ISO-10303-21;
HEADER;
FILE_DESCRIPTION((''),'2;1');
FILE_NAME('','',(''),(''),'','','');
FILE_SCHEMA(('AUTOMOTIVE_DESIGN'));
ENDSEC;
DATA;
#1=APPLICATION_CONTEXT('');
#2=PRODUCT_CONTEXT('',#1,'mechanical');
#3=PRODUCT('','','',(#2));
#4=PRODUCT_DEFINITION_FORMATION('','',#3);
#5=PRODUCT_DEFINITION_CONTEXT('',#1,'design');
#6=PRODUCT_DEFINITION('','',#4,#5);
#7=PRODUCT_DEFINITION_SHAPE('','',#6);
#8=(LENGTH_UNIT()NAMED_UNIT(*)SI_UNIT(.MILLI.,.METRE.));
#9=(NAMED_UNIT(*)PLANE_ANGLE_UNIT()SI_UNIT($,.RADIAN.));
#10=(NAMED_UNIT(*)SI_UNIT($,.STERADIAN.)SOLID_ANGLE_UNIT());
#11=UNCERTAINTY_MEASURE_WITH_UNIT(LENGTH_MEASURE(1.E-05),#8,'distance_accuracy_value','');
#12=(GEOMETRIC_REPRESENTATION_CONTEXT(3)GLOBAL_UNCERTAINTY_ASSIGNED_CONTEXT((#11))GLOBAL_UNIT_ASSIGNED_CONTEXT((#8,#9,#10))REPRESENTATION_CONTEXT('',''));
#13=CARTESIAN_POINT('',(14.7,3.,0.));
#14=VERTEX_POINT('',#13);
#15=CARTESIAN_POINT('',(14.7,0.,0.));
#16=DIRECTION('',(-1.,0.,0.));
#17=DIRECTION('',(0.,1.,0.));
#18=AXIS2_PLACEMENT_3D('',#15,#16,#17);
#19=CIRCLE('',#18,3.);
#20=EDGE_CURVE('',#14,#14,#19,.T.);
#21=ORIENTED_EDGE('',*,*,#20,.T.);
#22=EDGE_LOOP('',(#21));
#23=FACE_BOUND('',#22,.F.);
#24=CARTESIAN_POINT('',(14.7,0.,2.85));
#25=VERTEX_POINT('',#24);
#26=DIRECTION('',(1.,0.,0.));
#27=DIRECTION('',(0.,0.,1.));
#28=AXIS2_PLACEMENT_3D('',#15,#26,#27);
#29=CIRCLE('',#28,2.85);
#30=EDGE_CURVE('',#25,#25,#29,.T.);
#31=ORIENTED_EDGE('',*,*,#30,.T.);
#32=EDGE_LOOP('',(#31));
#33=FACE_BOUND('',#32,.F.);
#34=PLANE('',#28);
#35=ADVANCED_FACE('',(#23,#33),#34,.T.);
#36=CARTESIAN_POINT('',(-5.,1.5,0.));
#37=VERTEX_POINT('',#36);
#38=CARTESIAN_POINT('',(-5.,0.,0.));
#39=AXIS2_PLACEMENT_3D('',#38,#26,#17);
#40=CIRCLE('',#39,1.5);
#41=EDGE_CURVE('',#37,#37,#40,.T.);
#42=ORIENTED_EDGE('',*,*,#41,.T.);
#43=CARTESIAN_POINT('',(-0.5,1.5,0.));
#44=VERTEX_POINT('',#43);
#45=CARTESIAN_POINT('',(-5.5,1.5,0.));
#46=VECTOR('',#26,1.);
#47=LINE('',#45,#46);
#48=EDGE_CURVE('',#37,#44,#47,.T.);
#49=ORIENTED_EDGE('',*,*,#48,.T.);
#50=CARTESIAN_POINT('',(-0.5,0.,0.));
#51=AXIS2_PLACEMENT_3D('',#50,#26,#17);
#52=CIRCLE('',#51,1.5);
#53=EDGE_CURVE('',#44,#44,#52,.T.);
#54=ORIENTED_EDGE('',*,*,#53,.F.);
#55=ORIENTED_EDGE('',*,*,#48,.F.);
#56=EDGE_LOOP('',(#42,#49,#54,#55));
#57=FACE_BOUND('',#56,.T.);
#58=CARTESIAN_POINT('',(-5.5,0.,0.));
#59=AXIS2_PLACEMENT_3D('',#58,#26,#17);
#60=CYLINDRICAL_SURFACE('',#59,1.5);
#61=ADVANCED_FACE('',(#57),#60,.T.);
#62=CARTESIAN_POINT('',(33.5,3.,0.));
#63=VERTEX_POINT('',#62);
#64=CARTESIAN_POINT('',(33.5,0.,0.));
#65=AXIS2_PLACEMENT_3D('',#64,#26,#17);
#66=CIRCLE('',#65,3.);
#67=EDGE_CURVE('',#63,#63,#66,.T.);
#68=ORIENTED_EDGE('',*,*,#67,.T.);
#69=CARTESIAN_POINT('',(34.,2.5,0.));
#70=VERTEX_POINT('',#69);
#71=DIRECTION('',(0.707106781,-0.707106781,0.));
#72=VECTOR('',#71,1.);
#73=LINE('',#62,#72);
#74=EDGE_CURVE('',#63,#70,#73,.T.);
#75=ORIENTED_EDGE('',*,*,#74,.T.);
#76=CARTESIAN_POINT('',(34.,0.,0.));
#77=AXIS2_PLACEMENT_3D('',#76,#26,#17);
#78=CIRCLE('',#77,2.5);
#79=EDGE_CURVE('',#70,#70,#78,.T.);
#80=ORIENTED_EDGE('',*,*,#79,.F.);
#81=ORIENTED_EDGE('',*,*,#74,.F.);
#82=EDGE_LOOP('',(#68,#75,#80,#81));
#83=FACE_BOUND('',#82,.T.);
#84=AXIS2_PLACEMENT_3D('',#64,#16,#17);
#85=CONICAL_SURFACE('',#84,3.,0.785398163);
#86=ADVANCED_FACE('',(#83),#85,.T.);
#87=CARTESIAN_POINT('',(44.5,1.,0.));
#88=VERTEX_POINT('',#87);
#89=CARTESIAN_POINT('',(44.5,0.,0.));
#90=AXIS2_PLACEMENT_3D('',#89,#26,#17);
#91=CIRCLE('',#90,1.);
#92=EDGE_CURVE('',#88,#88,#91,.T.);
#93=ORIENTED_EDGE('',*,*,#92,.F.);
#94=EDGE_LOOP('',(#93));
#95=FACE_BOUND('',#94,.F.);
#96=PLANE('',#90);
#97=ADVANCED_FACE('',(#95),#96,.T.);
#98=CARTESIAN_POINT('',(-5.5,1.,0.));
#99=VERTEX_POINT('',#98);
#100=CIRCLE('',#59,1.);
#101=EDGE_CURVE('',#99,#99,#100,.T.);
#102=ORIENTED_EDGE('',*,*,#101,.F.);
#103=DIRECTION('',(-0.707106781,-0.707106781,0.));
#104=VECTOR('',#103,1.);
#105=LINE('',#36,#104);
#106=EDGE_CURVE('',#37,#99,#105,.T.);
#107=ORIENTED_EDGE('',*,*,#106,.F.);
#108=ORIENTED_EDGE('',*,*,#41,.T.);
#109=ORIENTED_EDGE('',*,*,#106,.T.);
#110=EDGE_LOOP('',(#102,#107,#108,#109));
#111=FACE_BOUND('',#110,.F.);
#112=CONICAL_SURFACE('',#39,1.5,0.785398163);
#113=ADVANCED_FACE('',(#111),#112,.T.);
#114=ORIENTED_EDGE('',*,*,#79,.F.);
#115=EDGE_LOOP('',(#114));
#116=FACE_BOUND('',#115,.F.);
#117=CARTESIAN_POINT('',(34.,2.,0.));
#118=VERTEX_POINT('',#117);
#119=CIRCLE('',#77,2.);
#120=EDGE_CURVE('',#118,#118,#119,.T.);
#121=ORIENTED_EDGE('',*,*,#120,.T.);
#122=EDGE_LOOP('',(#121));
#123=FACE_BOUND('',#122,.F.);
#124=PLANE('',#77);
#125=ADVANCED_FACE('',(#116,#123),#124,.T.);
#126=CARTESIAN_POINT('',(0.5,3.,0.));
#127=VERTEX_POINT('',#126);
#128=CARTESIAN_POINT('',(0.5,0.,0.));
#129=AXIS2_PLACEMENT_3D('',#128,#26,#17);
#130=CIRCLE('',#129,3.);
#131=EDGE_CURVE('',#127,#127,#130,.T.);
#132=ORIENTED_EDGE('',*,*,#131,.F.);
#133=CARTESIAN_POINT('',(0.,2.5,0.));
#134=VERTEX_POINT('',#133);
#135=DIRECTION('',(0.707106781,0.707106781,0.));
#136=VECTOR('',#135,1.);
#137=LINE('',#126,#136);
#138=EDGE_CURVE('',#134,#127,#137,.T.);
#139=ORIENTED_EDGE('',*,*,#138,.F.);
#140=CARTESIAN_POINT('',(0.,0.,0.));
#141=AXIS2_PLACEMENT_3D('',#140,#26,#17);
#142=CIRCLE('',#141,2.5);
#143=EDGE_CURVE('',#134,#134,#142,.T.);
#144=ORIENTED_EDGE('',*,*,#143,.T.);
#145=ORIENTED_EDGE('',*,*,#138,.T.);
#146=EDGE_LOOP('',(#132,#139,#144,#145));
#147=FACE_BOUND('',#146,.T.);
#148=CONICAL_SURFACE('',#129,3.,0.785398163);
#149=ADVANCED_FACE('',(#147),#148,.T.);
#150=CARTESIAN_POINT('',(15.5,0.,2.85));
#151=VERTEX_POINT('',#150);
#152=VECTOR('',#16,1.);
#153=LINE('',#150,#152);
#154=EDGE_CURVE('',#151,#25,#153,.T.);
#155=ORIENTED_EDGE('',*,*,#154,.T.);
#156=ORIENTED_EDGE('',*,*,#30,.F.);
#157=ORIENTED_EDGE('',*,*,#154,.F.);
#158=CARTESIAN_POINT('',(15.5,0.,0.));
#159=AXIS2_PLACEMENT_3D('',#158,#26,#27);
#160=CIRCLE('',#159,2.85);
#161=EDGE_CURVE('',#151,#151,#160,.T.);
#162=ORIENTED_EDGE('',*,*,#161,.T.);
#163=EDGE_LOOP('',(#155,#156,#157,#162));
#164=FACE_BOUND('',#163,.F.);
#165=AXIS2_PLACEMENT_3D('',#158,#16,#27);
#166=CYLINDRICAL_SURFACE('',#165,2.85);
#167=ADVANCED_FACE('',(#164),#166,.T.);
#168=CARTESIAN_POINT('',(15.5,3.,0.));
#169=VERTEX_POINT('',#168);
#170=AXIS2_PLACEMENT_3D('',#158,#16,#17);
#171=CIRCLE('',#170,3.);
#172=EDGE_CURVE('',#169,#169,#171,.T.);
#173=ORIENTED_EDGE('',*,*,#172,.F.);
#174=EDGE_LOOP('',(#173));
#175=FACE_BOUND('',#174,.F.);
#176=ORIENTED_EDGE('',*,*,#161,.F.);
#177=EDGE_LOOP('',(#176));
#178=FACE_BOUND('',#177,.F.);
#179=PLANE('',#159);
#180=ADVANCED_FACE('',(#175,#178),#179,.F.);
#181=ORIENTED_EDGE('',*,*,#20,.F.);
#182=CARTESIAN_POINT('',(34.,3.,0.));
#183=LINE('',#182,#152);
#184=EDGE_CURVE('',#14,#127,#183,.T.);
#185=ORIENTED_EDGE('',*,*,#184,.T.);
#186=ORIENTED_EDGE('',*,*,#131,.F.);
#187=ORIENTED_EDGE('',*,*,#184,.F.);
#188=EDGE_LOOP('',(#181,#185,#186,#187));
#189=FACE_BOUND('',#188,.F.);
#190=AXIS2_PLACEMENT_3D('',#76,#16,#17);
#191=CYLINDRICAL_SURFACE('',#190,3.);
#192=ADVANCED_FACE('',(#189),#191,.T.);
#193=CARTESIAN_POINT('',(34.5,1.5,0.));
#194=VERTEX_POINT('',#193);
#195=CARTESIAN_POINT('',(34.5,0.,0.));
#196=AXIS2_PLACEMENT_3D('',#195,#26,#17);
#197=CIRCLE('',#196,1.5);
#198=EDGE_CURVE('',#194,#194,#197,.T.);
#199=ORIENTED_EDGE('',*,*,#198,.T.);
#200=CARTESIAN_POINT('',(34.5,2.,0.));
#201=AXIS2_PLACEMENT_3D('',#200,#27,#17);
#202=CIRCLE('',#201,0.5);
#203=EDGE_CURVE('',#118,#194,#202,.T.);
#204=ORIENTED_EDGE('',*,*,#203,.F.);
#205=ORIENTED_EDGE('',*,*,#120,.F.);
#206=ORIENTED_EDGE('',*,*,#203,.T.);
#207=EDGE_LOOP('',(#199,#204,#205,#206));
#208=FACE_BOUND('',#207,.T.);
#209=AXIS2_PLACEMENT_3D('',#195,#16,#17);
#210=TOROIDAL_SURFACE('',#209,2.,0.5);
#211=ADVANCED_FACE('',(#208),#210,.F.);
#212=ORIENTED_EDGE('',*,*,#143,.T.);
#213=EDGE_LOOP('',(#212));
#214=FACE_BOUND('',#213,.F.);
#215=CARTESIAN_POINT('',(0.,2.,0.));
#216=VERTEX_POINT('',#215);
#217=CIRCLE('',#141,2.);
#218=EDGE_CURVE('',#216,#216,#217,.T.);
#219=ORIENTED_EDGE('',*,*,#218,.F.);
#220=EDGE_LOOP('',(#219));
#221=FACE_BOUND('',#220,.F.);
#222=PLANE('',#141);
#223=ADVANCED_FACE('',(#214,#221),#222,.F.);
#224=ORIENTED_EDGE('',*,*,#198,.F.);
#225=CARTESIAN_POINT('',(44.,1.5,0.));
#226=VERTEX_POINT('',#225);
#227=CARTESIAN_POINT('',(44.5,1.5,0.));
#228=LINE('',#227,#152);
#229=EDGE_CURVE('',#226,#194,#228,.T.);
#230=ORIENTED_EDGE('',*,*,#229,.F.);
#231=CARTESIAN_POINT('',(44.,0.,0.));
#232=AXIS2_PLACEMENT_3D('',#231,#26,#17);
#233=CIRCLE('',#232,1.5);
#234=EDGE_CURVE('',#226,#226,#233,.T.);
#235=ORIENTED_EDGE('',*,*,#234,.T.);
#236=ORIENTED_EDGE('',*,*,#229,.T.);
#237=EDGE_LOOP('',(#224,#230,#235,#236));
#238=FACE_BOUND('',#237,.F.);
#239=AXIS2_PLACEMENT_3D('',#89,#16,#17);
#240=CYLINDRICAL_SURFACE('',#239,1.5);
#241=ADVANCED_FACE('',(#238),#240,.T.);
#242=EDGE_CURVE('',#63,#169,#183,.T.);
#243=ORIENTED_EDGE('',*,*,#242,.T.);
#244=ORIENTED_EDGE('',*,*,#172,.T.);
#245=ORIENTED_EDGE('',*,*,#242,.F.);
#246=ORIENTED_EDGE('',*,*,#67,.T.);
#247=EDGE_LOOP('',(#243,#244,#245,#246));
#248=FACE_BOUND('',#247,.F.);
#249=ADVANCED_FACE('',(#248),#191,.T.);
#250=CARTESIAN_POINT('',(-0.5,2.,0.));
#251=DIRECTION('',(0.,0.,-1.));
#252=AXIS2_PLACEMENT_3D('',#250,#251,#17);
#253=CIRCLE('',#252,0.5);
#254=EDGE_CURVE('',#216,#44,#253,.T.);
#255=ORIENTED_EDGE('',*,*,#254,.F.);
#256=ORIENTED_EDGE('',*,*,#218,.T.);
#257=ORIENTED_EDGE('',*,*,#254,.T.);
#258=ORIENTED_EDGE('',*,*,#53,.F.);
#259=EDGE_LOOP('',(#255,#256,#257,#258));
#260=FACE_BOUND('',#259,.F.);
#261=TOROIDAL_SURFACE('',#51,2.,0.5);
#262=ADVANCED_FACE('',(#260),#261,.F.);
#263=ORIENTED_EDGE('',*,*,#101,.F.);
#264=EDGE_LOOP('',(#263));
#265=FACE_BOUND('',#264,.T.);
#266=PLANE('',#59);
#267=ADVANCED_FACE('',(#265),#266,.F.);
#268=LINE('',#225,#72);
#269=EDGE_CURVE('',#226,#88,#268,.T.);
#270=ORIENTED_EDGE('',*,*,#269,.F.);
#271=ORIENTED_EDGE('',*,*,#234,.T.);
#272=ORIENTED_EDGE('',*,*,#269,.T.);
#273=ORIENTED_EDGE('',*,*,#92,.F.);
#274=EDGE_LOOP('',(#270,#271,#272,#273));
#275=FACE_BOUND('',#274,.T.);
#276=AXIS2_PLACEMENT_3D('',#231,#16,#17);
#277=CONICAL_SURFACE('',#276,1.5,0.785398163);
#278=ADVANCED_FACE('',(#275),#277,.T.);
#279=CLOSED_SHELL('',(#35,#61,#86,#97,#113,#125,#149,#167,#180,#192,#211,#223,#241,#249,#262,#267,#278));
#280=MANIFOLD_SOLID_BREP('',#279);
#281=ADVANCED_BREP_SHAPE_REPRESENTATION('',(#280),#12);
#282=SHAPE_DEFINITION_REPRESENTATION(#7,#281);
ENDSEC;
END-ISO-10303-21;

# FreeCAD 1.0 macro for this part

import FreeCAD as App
import Part
import Sketcher
Q = App.Units.Quantity


def edges_at(feature, points):
    """Names of the edges that pass closest to the given points."""
    edges = feature.Shape.Edges
    near = lambda p: min(range(len(edges)), key=lambda i: edges[i].distToShape(Part.Vertex(*p))[0])
    return sorted({f"Edge{near(p) + 1}" for p in points})


def add_polygon(sketch, points):
    """Adds a closed chain of lines whose ends are joined by coincident constraints."""
    first, n = sketch.GeometryCount, len(points)
    for a, b in zip(points, points[1:] + points[:1]):
        sketch.addGeometry(Part.LineSegment(App.Vector(*a, 0), App.Vector(*b, 0)), False)
    for i in range(n):
        sketch.addConstraint(Sketcher.Constraint("Coincident", first + i, 2, first + (i + 1) % n, 1))

doc = App.newDocument("Part")
body = doc.addObject("PartDesign::Body", "Body")

# Sketch on XY plane
sketch1 = doc.addObject("Sketcher::SketchObject", "Sketch")
body.addObject(sketch1)
sketch1.AttachmentSupport = (doc.XY_Plane, [""])
sketch1.MapMode = "FlatFace"
add_polygon(sketch1, [(0, 3), (0, 1.5), (-5.5, 1.5), (-5.5, 0), (44.5, 0), (44.5, 1.5), (34, 1.5), (34, 3)])  # lines 0-7
sketch1.addConstraint([
    Sketcher.Constraint("Vertical", 0),
    Sketcher.Constraint("Horizontal", 1),
    Sketcher.Constraint("Vertical", 2),
    Sketcher.Constraint("Horizontal", 3),
    Sketcher.Constraint("Vertical", 4),
    Sketcher.Constraint("Horizontal", 5),
    Sketcher.Constraint("Vertical", 6),
    Sketcher.Constraint("Horizontal", 7),
    Sketcher.Constraint("PointOnObject", 0, 2, -2),
    Sketcher.Constraint("PointOnObject", 2, 2, -1),
    Sketcher.Constraint("Horizontal", 1, 2, 4, 2),
    Sketcher.Constraint("Equal", 0, 2),
    Sketcher.Constraint("DistanceX", 7, 2, 7, 1, Q("34 mm")),
    Sketcher.Constraint("DistanceX", 1, 2, 1, 1, Q("5.5 mm")),
    Sketcher.Constraint("DistanceX", 5, 2, 5, 1, Q("10.5 mm")),
    Sketcher.Constraint("DistanceY", 0, 2, 0, 1, Q("1.5 mm")),
])
revolution = doc.addObject("PartDesign::Revolution", "Revolution")
body.addObject(revolution)
revolution.Profile = sketch1
revolution.ReferenceAxis = (sketch1, ["H_Axis"])
revolution.Angle = 360
doc.recompute()

fillet = doc.addObject("PartDesign::Fillet", "Fillet")
body.addObject(fillet)
fillet.Base = (revolution, edges_at(revolution, [(34, -1.5, 0), (0, -1.5, 0)]))
fillet.Radius = 0.5
doc.recompute()

chamfer = doc.addObject("PartDesign::Chamfer", "Chamfer")
body.addObject(chamfer)
chamfer.Base = (fillet, edges_at(fillet, [
    (-5.5, -1.5, 0),
    (0, -3, 0),
    (34, -3, 0),
    (44.5, -1.5, 0),
]))
chamfer.Size = 0.5

# Sketch on XZ plane
sketch2 = doc.addObject("Sketcher::SketchObject", "Sketch001")
body.addObject(sketch2)
sketch2.AttachmentSupport = (doc.XZ_Plane, [""])
sketch2.MapMode = "FlatFace"
add_polygon(sketch2, [(14.7, 2.85), (14.7, 3), (15.5, 3), (15.5, 2.85)])  # lines 0-3
sketch2.addConstraint([
    Sketcher.Constraint("Vertical", 0),
    Sketcher.Constraint("Horizontal", 1),
    Sketcher.Constraint("Vertical", 2),
    Sketcher.Constraint("Horizontal", 3),
    Sketcher.Constraint("DistanceX", 1, 1, 1, 2, Q("0.8 mm")),
    Sketcher.Constraint("DistanceX", -1, 1, 1, 2, Q("15.5 mm")),
    Sketcher.Constraint("DistanceY", -1, 1, 2, 2, Q("2.85 mm")),
    Sketcher.Constraint("DistanceY", -1, 1, 0, 2, Q("3 mm")),
])
groove = doc.addObject("PartDesign::Groove", "Groove")
body.addObject(groove)
groove.Profile = sketch2
groove.ReferenceAxis = (sketch2, ["H_Axis"])
groove.Angle = 360

doc.recompute()
